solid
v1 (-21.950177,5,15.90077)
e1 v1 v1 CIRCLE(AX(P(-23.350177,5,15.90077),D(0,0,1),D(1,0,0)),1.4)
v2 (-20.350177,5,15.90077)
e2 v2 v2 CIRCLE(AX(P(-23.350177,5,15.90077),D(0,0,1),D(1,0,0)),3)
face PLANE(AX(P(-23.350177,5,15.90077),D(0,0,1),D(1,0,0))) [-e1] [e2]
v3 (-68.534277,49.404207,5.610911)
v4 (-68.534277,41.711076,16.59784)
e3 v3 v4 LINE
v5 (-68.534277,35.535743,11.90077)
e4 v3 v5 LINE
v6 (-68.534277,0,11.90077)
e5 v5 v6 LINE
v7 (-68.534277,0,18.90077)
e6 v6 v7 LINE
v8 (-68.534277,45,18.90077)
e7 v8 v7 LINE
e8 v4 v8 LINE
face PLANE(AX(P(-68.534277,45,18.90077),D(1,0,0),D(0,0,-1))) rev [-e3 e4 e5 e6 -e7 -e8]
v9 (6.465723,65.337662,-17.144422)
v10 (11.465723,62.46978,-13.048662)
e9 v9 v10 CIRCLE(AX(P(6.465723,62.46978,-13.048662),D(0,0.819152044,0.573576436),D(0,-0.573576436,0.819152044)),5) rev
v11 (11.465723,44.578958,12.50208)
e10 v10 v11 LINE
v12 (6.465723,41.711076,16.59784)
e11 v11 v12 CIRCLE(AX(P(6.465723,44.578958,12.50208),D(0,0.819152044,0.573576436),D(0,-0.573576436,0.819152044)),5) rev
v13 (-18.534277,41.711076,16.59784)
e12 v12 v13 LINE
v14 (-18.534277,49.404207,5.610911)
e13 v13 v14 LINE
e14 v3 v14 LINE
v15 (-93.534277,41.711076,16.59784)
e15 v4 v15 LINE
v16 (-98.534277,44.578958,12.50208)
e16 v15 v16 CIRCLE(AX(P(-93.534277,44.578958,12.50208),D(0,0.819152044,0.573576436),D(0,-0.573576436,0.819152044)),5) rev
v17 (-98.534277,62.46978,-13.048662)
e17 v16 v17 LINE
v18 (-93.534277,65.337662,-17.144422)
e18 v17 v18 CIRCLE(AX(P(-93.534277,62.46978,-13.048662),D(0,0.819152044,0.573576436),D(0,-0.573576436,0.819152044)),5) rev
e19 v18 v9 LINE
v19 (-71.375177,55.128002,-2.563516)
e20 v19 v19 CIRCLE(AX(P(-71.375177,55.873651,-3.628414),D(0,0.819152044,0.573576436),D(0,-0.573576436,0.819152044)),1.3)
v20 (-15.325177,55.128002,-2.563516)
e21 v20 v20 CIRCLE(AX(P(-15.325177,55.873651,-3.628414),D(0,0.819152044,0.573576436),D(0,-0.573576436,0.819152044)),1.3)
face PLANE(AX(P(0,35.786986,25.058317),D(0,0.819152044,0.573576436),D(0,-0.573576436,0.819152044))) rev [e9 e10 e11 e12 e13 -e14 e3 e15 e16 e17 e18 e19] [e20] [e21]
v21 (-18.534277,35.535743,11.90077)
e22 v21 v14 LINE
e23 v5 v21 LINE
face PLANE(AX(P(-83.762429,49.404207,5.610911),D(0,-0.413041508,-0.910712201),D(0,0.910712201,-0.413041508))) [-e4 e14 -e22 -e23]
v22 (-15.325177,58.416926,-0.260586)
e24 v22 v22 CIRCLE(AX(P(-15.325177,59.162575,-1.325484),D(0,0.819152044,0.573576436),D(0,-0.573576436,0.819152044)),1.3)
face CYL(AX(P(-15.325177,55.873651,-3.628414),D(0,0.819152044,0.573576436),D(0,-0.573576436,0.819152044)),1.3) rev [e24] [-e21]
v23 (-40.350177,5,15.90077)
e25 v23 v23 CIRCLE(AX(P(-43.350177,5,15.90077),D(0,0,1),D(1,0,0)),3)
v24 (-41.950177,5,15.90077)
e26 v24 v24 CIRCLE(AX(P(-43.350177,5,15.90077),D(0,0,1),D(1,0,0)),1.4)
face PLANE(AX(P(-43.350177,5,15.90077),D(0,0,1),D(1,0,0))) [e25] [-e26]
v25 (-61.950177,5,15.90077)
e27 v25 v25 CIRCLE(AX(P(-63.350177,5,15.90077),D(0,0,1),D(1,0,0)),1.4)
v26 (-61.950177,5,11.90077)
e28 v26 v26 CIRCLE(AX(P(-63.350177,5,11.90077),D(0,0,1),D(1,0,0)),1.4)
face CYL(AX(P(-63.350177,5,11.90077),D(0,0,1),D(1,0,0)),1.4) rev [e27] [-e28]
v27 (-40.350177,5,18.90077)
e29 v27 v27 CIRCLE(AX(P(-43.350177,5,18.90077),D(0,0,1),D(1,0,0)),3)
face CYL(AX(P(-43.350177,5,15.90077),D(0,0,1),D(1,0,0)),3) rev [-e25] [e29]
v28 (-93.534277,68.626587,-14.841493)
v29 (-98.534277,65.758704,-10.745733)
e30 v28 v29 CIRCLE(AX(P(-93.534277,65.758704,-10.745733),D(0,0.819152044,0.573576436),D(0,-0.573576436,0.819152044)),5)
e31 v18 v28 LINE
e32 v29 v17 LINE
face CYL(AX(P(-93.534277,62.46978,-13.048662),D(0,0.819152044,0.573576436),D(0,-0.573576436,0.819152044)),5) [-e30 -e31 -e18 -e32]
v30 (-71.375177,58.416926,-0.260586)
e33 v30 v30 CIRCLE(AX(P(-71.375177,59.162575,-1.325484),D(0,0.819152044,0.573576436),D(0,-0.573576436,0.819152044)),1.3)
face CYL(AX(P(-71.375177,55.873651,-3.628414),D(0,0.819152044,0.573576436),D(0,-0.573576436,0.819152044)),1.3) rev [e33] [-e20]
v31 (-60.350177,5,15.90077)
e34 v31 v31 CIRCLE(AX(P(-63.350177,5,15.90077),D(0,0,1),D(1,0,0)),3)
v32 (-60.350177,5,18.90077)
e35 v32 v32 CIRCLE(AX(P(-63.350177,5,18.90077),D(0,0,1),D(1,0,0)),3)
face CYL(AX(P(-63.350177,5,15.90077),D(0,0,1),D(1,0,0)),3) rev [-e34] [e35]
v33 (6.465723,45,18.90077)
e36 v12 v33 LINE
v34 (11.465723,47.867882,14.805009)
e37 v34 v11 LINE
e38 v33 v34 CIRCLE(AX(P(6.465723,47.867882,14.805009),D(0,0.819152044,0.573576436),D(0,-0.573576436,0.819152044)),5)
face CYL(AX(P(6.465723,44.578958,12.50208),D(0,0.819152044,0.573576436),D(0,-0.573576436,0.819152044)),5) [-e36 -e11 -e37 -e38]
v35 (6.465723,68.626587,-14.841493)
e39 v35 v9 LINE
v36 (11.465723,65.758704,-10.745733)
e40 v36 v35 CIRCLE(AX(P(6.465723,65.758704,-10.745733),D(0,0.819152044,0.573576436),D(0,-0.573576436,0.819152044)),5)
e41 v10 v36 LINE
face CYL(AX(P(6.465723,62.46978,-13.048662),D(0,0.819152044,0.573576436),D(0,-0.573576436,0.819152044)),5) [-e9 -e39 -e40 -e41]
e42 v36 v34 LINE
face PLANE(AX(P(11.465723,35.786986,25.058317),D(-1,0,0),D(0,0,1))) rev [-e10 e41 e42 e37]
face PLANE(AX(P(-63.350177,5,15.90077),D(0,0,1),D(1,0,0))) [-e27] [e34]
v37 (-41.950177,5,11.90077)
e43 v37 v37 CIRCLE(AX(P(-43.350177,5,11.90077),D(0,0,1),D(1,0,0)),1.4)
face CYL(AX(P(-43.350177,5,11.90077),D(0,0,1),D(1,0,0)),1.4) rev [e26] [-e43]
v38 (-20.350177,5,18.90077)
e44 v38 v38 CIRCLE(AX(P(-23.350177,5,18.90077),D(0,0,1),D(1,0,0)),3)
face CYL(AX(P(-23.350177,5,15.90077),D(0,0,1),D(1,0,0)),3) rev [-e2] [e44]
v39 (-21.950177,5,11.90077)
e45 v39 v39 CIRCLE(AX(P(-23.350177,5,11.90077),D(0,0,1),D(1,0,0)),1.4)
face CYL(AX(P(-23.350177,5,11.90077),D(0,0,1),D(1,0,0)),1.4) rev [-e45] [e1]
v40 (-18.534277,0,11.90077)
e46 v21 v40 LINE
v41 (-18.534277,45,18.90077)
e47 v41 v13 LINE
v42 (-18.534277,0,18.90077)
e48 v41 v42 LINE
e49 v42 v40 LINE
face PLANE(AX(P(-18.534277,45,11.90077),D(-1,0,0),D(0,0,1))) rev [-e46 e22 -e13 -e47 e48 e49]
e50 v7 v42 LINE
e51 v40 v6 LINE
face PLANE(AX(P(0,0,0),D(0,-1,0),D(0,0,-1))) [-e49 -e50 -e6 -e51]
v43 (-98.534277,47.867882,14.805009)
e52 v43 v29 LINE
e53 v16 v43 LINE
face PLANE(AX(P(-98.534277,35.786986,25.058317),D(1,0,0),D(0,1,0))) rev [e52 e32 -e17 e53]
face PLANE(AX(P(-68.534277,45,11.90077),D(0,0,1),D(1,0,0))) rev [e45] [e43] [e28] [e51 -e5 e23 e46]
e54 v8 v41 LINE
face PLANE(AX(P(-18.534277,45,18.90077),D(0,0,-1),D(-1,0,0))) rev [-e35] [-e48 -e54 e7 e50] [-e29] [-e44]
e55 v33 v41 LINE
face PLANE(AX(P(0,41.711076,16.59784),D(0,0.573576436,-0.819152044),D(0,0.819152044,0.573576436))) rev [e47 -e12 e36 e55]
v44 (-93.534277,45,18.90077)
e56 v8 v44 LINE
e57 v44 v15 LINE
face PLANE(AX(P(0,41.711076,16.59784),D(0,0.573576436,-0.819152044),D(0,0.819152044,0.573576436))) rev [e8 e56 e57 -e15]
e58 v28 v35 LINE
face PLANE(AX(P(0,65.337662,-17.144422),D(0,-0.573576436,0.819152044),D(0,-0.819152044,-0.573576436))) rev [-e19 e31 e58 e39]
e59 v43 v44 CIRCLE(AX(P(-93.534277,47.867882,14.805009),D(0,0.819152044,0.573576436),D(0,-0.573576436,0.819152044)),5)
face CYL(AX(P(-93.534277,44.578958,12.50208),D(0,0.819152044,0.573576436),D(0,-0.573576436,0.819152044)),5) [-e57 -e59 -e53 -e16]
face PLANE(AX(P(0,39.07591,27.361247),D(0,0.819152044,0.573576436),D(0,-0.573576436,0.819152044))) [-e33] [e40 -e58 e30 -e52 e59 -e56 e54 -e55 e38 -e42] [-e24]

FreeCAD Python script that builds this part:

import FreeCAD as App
import Part
import Sketcher
Q = App.Units.Quantity


def edges_at(feature, points):
    """Names of the edges that pass closest to the given points."""
    edges = feature.Shape.Edges
    near = lambda p: min(range(len(edges)), key=lambda i: edges[i].distToShape(Part.Vertex(*p))[0])
    return sorted({f"Edge{near(p) + 1}" for p in points})


def add_polygon(sketch, points):
    """Adds a closed chain of lines whose ends are joined by coincident constraints."""
    first, n = sketch.GeometryCount, len(points)
    for a, b in zip(points, points[1:] + points[:1]):
        sketch.addGeometry(Part.LineSegment(App.Vector(*a, 0), App.Vector(*b, 0)), False)
    for i in range(n):
        sketch.addConstraint(Sketcher.Constraint("Coincident", first + i, 2, first + (i + 1) % n, 1))

doc = App.newDocument("Part")
body = doc.addObject("PartDesign::Body", "Body")

sketch1 = body.newObject("Sketcher::SketchObject", "Sketch")
sketch1.AttachmentSupport = (doc.getObject("XZ_Plane"), [""])
sketch1.MapMode = "FlatFace"
add_polygon(sketch1, [(-68.534277, 11.90077), (-68.534277, 18.90077), (-18.534277, 18.90077), (-18.534277, 11.90077)])
sketch1.addConstraint(Sketcher.Constraint("Vertical", 0))
sketch1.addConstraint(Sketcher.Constraint("Horizontal", 1))
sketch1.addConstraint(Sketcher.Constraint("Vertical", 2))
sketch1.addConstraint(Sketcher.Constraint("Horizontal", 3))
sketch1.addConstraint(Sketcher.Constraint("DistanceX", 1, 1, 1, 2, 50.0))
sketch1.addConstraint(Sketcher.Constraint("DistanceY", 0, 1, 0, 2, 7.0))
sketch1.addConstraint(Sketcher.Constraint("DistanceY", -1, 1, 0, 2, 18.90077))
sketch1.addConstraint(Sketcher.Constraint("DistanceX", 0, 2, -1, 1, 68.534277))
pad1 = body.newObject("PartDesign::Pad", "Pad")
pad1.Profile = sketch1
pad1.Length = 45
pad1.Reversed = True

sketch2 = body.newObject("Sketcher::SketchObject", "Sketch001")
sketch2.AttachmentSupport = (doc.getObject("XY_Plane"), [""])
sketch2.MapMode = "FlatFace"
sketch2.AttachmentOffset = App.Placement(App.Vector(0, 0, 18.90077), App.Rotation())
sketch2.addGeometry(Part.Circle(App.Vector(-43.350177, 5, 0), App.Vector(0, 0, 1), 3), False)
sketch2.addGeometry(Part.Circle(App.Vector(-23.350177, 5, 0), App.Vector(0, 0, 1), 3), False)
sketch2.addGeometry(Part.Circle(App.Vector(-63.350177, 5, 0), App.Vector(0, 0, 1), 3), False)
sketch2.addConstraint(Sketcher.Constraint("Equal", 0, 1))
sketch2.addConstraint(Sketcher.Constraint("Equal", 1, 2))
sketch2.addConstraint(Sketcher.Constraint("Horizontal", 0, 3, 1, 3))
sketch2.addConstraint(Sketcher.Constraint("Horizontal", 1, 3, 2, 3))
sketch2.addConstraint(Sketcher.Constraint("Diameter", 0, 6.0))
sketch2.addConstraint(Sketcher.Constraint("DistanceY", -1, 1, 0, 3, 5.0))
sketch2.addConstraint(Sketcher.Constraint("DistanceX", 0, 3, 1, 3, 20.0))
sketch2.addConstraint(Sketcher.Constraint("DistanceX", 2, 3, 0, 3, 20.0))
sketch2.addConstraint(Sketcher.Constraint("DistanceX", 0, 3, -1, 1, 43.350177))
pocket1 = body.newObject("PartDesign::Pocket", "Pocket")
pocket1.Profile = sketch2
pocket1.Length = 3

sketch3 = body.newObject("Sketcher::SketchObject", "Sketch002")
sketch3.AttachmentSupport = (doc.getObject("XY_Plane"), [""])
sketch3.MapMode = "FlatFace"
sketch3.AttachmentOffset = App.Placement(App.Vector(0, 0, 15.90077), App.Rotation())
sketch3.addGeometry(Part.Circle(App.Vector(-23.350177, 5, 0), App.Vector(0, 0, 1), 1.4), False)
sketch3.addGeometry(Part.Circle(App.Vector(-43.350177, 5, 0), App.Vector(0, 0, 1), 1.4), False)
sketch3.addGeometry(Part.Circle(App.Vector(-63.350177, 5, 0), App.Vector(0, 0, 1), 1.4), False)
sketch3.addConstraint(Sketcher.Constraint("Equal", 0, 1))
sketch3.addConstraint(Sketcher.Constraint("Equal", 1, 2))
sketch3.addConstraint(Sketcher.Constraint("Horizontal", 0, 3, 1, 3))
sketch3.addConstraint(Sketcher.Constraint("Horizontal", 1, 3, 2, 3))
sketch3.addConstraint(Sketcher.Constraint("Diameter", 0, 2.8))
sketch3.addConstraint(Sketcher.Constraint("DistanceY", -1, 1, 0, 3, 5.0))
sketch3.addConstraint(Sketcher.Constraint("DistanceX", 1, 3, 0, 3, 20.0))
sketch3.addConstraint(Sketcher.Constraint("DistanceX", 2, 3, 1, 3, 20.0))
sketch3.addConstraint(Sketcher.Constraint("DistanceX", 0, 3, -1, 1, 23.350177))
pocket2 = body.newObject("PartDesign::Pocket", "Pocket001")
pocket2.Profile = sketch3
pocket2.Type = "ThroughAll"

sketch4 = body.newObject("Sketcher::SketchObject", "Sketch003")
sketch4.Placement = App.Placement(App.Vector(0, 39.07591, 27.361247), App.Rotation(App.Vector(1, 0, 0), App.Vector(0, 0.573576436, -0.819152044), App.Vector(0, 0.819152044, 0.573576436), "ZXY"))
add_polygon(sketch4, [(11.465723, 10.328336), (11.465723, 51.520032), (-98.534277, 51.520032), (-98.534277, 10.328336)])
sketch4.addGeometry(Part.Circle(App.Vector(-71.375177, 35.020032, 0), App.Vector(0, 0, 1), 1.3), False)
sketch4.addGeometry(Part.Circle(App.Vector(-15.325177, 35.020032, 0), App.Vector(0, 0, 1), 1.3), False)
sketch4.addConstraint(Sketcher.Constraint("Vertical", 0))
sketch4.addConstraint(Sketcher.Constraint("Horizontal", 1))
sketch4.addConstraint(Sketcher.Constraint("Vertical", 2))
sketch4.addConstraint(Sketcher.Constraint("Horizontal", 3))
sketch4.addConstraint(Sketcher.Constraint("Equal", 4, 5))
sketch4.addConstraint(Sketcher.Constraint("Horizontal", 4, 3, 5, 3))
sketch4.addConstraint(Sketcher.Constraint("Diameter", 4, 2.6))
sketch4.addConstraint(Sketcher.Constraint("DistanceX", 1, 2, 1, 1, 110.0))
sketch4.addConstraint(Sketcher.Constraint("DistanceY", 5, 3, 0, 2, 16.5))
sketch4.addConstraint(Sketcher.Constraint("DistanceX", 4, 3, 5, 3, 56.05))
sketch4.addConstraint(Sketcher.Constraint("DistanceX", 5, 3, 0, 2, 26.7909))
sketch4.addConstraint(Sketcher.Constraint("DistanceY", 0, 1, 0, 2, 41.191697))
sketch4.addConstraint(Sketcher.Constraint("DistanceX", 4, 3, -1, 1, 71.375177))
sketch4.addConstraint(Sketcher.Constraint("DistanceY", -1, 1, 4, 3, 35.020032))
pad2 = body.newObject("PartDesign::Pad", "Pad001")
pad2.Profile = sketch4
pad2.Length = 4.015035
pad2.Reversed = True

sketch5 = body.newObject("Sketcher::SketchObject", "Sketch004")
sketch5.AttachmentSupport = (doc.getObject("YZ_Plane"), [""])
sketch5.MapMode = "FlatFace"
sketch5.AttachmentOffset = App.Placement(App.Vector(0, 0, -18.534277), App.Rotation())
add_polygon(sketch5, [(49.404207, 5.610911), (45, 11.90077), (35.535743, 11.90077)])
sketch5.addConstraint(Sketcher.Constraint("Horizontal", 1))
sketch5.addConstraint(Sketcher.Constraint("Angle", 0, Q("125 deg")))
sketch5.addConstraint(Sketcher.Constraint("DistanceX", -1, 1, 0, 2, 45.0))
sketch5.addConstraint(Sketcher.Constraint("Distance", 0, 7.6785))
sketch5.addConstraint(Sketcher.Constraint("DistanceX", 1, 2, 1, 1, 9.464257))
sketch5.addConstraint(Sketcher.Constraint("DistanceY", -1, 1, 0, 2, 11.90077))
pad3 = body.newObject("PartDesign::Pad", "Pad002")
pad3.Profile = sketch5
pad3.Length = 50
pad3.Reversed = True
doc.recompute()

fillet = body.newObject("PartDesign::Fillet", "Fillet")
fillet.Base = (pad3, edges_at(pad3, [
    (11.466, 43.356, 17.749),
    (-98.534, 66.982, -15.993),
    (11.466, 66.982, -15.993),
    (-98.534, 43.356, 17.749),
]))
fillet.Radius = 5

doc.recompute()
